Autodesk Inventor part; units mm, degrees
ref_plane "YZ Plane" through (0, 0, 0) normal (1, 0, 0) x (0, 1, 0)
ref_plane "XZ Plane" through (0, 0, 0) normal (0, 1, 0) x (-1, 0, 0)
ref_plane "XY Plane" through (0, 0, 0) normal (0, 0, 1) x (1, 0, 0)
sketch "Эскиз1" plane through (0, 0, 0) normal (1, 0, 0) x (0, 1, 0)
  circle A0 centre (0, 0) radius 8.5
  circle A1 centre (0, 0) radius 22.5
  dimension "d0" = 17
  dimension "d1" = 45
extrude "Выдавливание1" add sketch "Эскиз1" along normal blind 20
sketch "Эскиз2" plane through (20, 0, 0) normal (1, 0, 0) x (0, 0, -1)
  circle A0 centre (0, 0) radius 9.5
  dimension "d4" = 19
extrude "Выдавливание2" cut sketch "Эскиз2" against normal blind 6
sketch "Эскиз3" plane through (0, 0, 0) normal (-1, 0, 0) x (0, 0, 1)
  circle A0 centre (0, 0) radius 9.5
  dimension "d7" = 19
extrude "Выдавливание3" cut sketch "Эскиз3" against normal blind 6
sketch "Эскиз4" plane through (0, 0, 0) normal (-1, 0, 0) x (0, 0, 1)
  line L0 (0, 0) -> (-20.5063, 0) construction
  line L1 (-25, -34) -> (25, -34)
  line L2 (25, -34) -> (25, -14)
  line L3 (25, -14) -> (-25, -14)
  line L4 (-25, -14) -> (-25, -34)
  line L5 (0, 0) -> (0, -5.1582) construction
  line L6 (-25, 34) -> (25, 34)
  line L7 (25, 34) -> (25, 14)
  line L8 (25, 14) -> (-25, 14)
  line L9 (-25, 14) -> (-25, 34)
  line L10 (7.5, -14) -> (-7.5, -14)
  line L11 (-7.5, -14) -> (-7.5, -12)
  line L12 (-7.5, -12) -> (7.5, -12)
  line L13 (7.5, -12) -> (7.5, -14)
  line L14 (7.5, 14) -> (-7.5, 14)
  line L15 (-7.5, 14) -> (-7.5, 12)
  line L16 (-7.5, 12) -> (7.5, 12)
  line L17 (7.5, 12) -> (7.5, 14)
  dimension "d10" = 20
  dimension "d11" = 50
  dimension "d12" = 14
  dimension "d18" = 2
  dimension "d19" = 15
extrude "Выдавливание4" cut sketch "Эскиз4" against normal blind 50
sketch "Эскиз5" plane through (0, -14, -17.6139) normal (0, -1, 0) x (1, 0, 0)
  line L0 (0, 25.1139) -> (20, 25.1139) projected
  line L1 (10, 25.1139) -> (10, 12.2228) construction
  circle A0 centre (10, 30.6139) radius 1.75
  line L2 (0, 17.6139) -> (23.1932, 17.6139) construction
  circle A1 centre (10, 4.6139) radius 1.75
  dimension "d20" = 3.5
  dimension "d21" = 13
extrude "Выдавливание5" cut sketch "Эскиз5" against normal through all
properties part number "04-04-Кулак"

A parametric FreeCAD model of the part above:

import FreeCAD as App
import Part
import Sketcher

V = App.Vector
Q = App.Units.Quantity

doc = App.newDocument("Part")
body = doc.addObject("PartDesign::Body", "Body")

# Sketch on YZ plane
sketch1 = body.newObject("Sketcher::SketchObject", "Sketch")
sketch1.AttachmentSupport = (doc.getObject("YZ_Plane"), [""])
sketch1.MapMode = "FlatFace"
sketch1.addGeometry(Part.Circle(V(0, 0, 0), V(0, 0, 1), 22), False)
sketch1.addGeometry(Part.Circle(V(0, 0, 0), V(0, 0, 1), 8), False)
sketch1.addConstraint(Sketcher.Constraint("Coincident", 0, 3, -1, 1))
sketch1.addConstraint(Sketcher.Constraint("Coincident", 1, 3, -1, 1))
sketch1.addConstraint(Sketcher.Constraint("Diameter", 0, Q("45 mm")))
sketch1.addConstraint(Sketcher.Constraint("Diameter", 1, Q("17 mm")))
pad1 = body.newObject("PartDesign::Pad", "Pad")
pad1.Profile = sketch1
pad1.Length = 20

# Sketch on YZ plane
sketch2 = body.newObject("Sketcher::SketchObject", "Sketch001")
sketch2.AttachmentSupport = (doc.getObject("YZ_Plane"), [""])
sketch2.MapMode = "FlatFace"
sketch2.AttachmentOffset = App.Placement(V(0, 0, 20), App.Rotation())
sketch2.addGeometry(Part.Circle(V(0, 0, 0), V(0, 0, 1), 10), False)
sketch2.addConstraint(Sketcher.Constraint("Coincident", 0, 3, -1, 1))
sketch2.addConstraint(Sketcher.Constraint("Diameter", 0, Q("19 mm")))
pocket1 = body.newObject("PartDesign::Pocket", "Pocket")
pocket1.Profile = sketch2
pocket1.Length = 6

# Sketch on YZ plane
sketch3 = body.newObject("Sketcher::SketchObject", "Sketch002")
sketch3.AttachmentSupport = (doc.getObject("YZ_Plane"), [""])
sketch3.MapMode = "FlatFace"
sketch3.addGeometry(Part.Circle(V(0, 0, 0), V(0, 0, 1), 10), False)
sketch3.addConstraint(Sketcher.Constraint("Coincident", 0, 3, -1, 1))
sketch3.addConstraint(Sketcher.Constraint("Diameter", 0, Q("19 mm")))
pocket2 = body.newObject("PartDesign::Pocket", "Pocket001")
pocket2.Profile = sketch3
pocket2.Length = 6
pocket2.Reversed = True

# Sketch on YZ plane
sketch4 = body.newObject("Sketcher::SketchObject", "Sketch003")
sketch4.AttachmentSupport = (doc.getObject("YZ_Plane"), [""])
sketch4.MapMode = "FlatFace"
sketch4.addGeometry(Part.LineSegment(V(-14, -25, 0), V(-34, -25, 0)), False)
sketch4.addGeometry(Part.LineSegment(V(-34, -25, 0), V(-34, 25, 0)), False)
sketch4.addGeometry(Part.LineSegment(V(-34, 25, 0), V(-14, 25, 0)), False)
sketch4.addGeometry(Part.LineSegment(V(-14, 25, 0), V(-14, 7.5, 0)), False)
sketch4.addGeometry(Part.LineSegment(V(-14, 7.5, 0), V(-12, 7.5, 0)), False)
sketch4.addGeometry(Part.LineSegment(V(-12, 7.5, 0), V(-12, -7.5, 0)), False)
sketch4.addGeometry(Part.LineSegment(V(-12, -7.5, 0), V(-14, -7.5, 0)), False)
sketch4.addGeometry(Part.LineSegment(V(-14, -7.5, 0), V(-14, -25, 0)), False)
sketch4.addGeometry(Part.LineSegment(V(34, 25, 0), V(34, -25, 0)), False)
sketch4.addGeometry(Part.LineSegment(V(34, -25, 0), V(14, -25, 0)), False)
sketch4.addGeometry(Part.LineSegment(V(14, -25, 0), V(14, -7.5, 0)), False)
sketch4.addGeometry(Part.LineSegment(V(14, -7.5, 0), V(12, -7.5, 0)), False)
sketch4.addGeometry(Part.LineSegment(V(12, -7.5, 0), V(12, 7.5, 0)), False)
sketch4.addGeometry(Part.LineSegment(V(12, 7.5, 0), V(14, 7.5, 0)), False)
sketch4.addGeometry(Part.LineSegment(V(14, 7.5, 0), V(14, 25, 0)), False)
sketch4.addGeometry(Part.LineSegment(V(14, 25, 0), V(34, 25, 0)), False)
sketch4.addConstraint(Sketcher.Constraint("Coincident", 0, 2, 1, 1))
sketch4.addConstraint(Sketcher.Constraint("Coincident", 1, 2, 2, 1))
sketch4.addConstraint(Sketcher.Constraint("Coincident", 2, 2, 3, 1))
sketch4.addConstraint(Sketcher.Constraint("Coincident", 3, 2, 4, 1))
sketch4.addConstraint(Sketcher.Constraint("Coincident", 4, 2, 5, 1))
sketch4.addConstraint(Sketcher.Constraint("Coincident", 5, 2, 6, 1))
sketch4.addConstraint(Sketcher.Constraint("Coincident", 6, 2, 7, 1))
sketch4.addConstraint(Sketcher.Constraint("Coincident", 7, 2, 0, 1))
sketch4.addConstraint(Sketcher.Constraint("Coincident", 8, 2, 9, 1))
sketch4.addConstraint(Sketcher.Constraint("Coincident", 9, 2, 10, 1))
sketch4.addConstraint(Sketcher.Constraint("Coincident", 10, 2, 11, 1))
sketch4.addConstraint(Sketcher.Constraint("Coincident", 11, 2, 12, 1))
sketch4.addConstraint(Sketcher.Constraint("Coincident", 12, 2, 13, 1))
sketch4.addConstraint(Sketcher.Constraint("Coincident", 13, 2, 14, 1))
sketch4.addConstraint(Sketcher.Constraint("Coincident", 14, 2, 15, 1))
sketch4.addConstraint(Sketcher.Constraint("Coincident", 15, 2, 8, 1))
sketch4.addConstraint(Sketcher.Constraint("Horizontal", 0))
sketch4.addConstraint(Sketcher.Constraint("Vertical", 1))
sketch4.addConstraint(Sketcher.Constraint("Horizontal", 2))
sketch4.addConstraint(Sketcher.Constraint("Vertical", 3))
sketch4.addConstraint(Sketcher.Constraint("Horizontal", 4))
sketch4.addConstraint(Sketcher.Constraint("Vertical", 5))
sketch4.addConstraint(Sketcher.Constraint("Horizontal", 6))
sketch4.addConstraint(Sketcher.Constraint("Vertical", 7))
sketch4.addConstraint(Sketcher.Constraint("Vertical", 8))
sketch4.addConstraint(Sketcher.Constraint("Horizontal", 9))
sketch4.addConstraint(Sketcher.Constraint("Vertical", 10))
sketch4.addConstraint(Sketcher.Constraint("Horizontal", 11))
sketch4.addConstraint(Sketcher.Constraint("Vertical", 12))
sketch4.addConstraint(Sketcher.Constraint("Horizontal", 13))
sketch4.addConstraint(Sketcher.Constraint("Vertical", 14))
sketch4.addConstraint(Sketcher.Constraint("Horizontal", 15))
sketch4.addConstraint(Sketcher.Constraint("Symmetric", 1, 2, 8, 2, -1, 1))
sketch4.addConstraint(Sketcher.Constraint("Symmetric", 3, 2, 10, 2, -1, 1))
sketch4.addConstraint(Sketcher.Constraint("Symmetric", 5, 2, 12, 2, -1, 1))
sketch4.addConstraint(Sketcher.Constraint("Symmetric", 7, 2, 14, 2, -1, 1))
sketch4.addConstraint(Sketcher.Constraint("Symmetric", 7, 2, 9, 2, -2))
sketch4.addConstraint(Sketcher.Constraint("Horizontal", 6, 2, 10, 2))
sketch4.addConstraint(Sketcher.Constraint("DistanceX", 0, 2, 0, 1, Q("20 mm")))
sketch4.addConstraint(Sketcher.Constraint("DistanceX", 4, 1, 4, 2, Q("2 mm")))
sketch4.addConstraint(Sketcher.Constraint("DistanceY", 1, 1, 1, 2, Q("50 mm")))
sketch4.addConstraint(Sketcher.Constraint("DistanceY", 5, 2, 5, 1, Q("15 mm")))
sketch4.addConstraint(Sketcher.Constraint("DistanceX", 2, 2, -1, 1, Q("14 mm")))
pocket3 = body.newObject("PartDesign::Pocket", "Pocket002")
pocket3.Profile = sketch4
pocket3.Length = 50
pocket3.Reversed = True

# Sketch on XZ plane
sketch5 = body.newObject("Sketcher::SketchObject", "Sketch004")
sketch5.AttachmentSupport = (doc.getObject("XZ_Plane"), [""])
sketch5.MapMode = "FlatFace"
sketch5.AttachmentOffset = App.Placement(V(0, 0, 14), App.Rotation())
sketch5.addGeometry(Part.Circle(V(10, 13, 0), V(0, 0, 1), 1.8), False)
sketch5.addGeometry(Part.Circle(V(10, -13, 0), V(0, 0, 1), 1.8), False)
sketch5.addConstraint(Sketcher.Constraint("Equal", 0, 1))
sketch5.addConstraint(Sketcher.Constraint("Symmetric", 0, 3, 1, 3, -1))
sketch5.addConstraint(Sketcher.Constraint("Diameter", 0, Q("3.5 mm")))
sketch5.addConstraint(Sketcher.Constraint("DistanceY", -1, 1, 0, 3, Q("13 mm")))
sketch5.addConstraint(Sketcher.Constraint("DistanceX", -1, 1, 0, 3, Q("10 mm")))
pocket4 = body.newObject("PartDesign::Pocket", "Pocket003")
pocket4.Profile = sketch5
pocket4.Type = "ThroughAll"

doc.recompute()
